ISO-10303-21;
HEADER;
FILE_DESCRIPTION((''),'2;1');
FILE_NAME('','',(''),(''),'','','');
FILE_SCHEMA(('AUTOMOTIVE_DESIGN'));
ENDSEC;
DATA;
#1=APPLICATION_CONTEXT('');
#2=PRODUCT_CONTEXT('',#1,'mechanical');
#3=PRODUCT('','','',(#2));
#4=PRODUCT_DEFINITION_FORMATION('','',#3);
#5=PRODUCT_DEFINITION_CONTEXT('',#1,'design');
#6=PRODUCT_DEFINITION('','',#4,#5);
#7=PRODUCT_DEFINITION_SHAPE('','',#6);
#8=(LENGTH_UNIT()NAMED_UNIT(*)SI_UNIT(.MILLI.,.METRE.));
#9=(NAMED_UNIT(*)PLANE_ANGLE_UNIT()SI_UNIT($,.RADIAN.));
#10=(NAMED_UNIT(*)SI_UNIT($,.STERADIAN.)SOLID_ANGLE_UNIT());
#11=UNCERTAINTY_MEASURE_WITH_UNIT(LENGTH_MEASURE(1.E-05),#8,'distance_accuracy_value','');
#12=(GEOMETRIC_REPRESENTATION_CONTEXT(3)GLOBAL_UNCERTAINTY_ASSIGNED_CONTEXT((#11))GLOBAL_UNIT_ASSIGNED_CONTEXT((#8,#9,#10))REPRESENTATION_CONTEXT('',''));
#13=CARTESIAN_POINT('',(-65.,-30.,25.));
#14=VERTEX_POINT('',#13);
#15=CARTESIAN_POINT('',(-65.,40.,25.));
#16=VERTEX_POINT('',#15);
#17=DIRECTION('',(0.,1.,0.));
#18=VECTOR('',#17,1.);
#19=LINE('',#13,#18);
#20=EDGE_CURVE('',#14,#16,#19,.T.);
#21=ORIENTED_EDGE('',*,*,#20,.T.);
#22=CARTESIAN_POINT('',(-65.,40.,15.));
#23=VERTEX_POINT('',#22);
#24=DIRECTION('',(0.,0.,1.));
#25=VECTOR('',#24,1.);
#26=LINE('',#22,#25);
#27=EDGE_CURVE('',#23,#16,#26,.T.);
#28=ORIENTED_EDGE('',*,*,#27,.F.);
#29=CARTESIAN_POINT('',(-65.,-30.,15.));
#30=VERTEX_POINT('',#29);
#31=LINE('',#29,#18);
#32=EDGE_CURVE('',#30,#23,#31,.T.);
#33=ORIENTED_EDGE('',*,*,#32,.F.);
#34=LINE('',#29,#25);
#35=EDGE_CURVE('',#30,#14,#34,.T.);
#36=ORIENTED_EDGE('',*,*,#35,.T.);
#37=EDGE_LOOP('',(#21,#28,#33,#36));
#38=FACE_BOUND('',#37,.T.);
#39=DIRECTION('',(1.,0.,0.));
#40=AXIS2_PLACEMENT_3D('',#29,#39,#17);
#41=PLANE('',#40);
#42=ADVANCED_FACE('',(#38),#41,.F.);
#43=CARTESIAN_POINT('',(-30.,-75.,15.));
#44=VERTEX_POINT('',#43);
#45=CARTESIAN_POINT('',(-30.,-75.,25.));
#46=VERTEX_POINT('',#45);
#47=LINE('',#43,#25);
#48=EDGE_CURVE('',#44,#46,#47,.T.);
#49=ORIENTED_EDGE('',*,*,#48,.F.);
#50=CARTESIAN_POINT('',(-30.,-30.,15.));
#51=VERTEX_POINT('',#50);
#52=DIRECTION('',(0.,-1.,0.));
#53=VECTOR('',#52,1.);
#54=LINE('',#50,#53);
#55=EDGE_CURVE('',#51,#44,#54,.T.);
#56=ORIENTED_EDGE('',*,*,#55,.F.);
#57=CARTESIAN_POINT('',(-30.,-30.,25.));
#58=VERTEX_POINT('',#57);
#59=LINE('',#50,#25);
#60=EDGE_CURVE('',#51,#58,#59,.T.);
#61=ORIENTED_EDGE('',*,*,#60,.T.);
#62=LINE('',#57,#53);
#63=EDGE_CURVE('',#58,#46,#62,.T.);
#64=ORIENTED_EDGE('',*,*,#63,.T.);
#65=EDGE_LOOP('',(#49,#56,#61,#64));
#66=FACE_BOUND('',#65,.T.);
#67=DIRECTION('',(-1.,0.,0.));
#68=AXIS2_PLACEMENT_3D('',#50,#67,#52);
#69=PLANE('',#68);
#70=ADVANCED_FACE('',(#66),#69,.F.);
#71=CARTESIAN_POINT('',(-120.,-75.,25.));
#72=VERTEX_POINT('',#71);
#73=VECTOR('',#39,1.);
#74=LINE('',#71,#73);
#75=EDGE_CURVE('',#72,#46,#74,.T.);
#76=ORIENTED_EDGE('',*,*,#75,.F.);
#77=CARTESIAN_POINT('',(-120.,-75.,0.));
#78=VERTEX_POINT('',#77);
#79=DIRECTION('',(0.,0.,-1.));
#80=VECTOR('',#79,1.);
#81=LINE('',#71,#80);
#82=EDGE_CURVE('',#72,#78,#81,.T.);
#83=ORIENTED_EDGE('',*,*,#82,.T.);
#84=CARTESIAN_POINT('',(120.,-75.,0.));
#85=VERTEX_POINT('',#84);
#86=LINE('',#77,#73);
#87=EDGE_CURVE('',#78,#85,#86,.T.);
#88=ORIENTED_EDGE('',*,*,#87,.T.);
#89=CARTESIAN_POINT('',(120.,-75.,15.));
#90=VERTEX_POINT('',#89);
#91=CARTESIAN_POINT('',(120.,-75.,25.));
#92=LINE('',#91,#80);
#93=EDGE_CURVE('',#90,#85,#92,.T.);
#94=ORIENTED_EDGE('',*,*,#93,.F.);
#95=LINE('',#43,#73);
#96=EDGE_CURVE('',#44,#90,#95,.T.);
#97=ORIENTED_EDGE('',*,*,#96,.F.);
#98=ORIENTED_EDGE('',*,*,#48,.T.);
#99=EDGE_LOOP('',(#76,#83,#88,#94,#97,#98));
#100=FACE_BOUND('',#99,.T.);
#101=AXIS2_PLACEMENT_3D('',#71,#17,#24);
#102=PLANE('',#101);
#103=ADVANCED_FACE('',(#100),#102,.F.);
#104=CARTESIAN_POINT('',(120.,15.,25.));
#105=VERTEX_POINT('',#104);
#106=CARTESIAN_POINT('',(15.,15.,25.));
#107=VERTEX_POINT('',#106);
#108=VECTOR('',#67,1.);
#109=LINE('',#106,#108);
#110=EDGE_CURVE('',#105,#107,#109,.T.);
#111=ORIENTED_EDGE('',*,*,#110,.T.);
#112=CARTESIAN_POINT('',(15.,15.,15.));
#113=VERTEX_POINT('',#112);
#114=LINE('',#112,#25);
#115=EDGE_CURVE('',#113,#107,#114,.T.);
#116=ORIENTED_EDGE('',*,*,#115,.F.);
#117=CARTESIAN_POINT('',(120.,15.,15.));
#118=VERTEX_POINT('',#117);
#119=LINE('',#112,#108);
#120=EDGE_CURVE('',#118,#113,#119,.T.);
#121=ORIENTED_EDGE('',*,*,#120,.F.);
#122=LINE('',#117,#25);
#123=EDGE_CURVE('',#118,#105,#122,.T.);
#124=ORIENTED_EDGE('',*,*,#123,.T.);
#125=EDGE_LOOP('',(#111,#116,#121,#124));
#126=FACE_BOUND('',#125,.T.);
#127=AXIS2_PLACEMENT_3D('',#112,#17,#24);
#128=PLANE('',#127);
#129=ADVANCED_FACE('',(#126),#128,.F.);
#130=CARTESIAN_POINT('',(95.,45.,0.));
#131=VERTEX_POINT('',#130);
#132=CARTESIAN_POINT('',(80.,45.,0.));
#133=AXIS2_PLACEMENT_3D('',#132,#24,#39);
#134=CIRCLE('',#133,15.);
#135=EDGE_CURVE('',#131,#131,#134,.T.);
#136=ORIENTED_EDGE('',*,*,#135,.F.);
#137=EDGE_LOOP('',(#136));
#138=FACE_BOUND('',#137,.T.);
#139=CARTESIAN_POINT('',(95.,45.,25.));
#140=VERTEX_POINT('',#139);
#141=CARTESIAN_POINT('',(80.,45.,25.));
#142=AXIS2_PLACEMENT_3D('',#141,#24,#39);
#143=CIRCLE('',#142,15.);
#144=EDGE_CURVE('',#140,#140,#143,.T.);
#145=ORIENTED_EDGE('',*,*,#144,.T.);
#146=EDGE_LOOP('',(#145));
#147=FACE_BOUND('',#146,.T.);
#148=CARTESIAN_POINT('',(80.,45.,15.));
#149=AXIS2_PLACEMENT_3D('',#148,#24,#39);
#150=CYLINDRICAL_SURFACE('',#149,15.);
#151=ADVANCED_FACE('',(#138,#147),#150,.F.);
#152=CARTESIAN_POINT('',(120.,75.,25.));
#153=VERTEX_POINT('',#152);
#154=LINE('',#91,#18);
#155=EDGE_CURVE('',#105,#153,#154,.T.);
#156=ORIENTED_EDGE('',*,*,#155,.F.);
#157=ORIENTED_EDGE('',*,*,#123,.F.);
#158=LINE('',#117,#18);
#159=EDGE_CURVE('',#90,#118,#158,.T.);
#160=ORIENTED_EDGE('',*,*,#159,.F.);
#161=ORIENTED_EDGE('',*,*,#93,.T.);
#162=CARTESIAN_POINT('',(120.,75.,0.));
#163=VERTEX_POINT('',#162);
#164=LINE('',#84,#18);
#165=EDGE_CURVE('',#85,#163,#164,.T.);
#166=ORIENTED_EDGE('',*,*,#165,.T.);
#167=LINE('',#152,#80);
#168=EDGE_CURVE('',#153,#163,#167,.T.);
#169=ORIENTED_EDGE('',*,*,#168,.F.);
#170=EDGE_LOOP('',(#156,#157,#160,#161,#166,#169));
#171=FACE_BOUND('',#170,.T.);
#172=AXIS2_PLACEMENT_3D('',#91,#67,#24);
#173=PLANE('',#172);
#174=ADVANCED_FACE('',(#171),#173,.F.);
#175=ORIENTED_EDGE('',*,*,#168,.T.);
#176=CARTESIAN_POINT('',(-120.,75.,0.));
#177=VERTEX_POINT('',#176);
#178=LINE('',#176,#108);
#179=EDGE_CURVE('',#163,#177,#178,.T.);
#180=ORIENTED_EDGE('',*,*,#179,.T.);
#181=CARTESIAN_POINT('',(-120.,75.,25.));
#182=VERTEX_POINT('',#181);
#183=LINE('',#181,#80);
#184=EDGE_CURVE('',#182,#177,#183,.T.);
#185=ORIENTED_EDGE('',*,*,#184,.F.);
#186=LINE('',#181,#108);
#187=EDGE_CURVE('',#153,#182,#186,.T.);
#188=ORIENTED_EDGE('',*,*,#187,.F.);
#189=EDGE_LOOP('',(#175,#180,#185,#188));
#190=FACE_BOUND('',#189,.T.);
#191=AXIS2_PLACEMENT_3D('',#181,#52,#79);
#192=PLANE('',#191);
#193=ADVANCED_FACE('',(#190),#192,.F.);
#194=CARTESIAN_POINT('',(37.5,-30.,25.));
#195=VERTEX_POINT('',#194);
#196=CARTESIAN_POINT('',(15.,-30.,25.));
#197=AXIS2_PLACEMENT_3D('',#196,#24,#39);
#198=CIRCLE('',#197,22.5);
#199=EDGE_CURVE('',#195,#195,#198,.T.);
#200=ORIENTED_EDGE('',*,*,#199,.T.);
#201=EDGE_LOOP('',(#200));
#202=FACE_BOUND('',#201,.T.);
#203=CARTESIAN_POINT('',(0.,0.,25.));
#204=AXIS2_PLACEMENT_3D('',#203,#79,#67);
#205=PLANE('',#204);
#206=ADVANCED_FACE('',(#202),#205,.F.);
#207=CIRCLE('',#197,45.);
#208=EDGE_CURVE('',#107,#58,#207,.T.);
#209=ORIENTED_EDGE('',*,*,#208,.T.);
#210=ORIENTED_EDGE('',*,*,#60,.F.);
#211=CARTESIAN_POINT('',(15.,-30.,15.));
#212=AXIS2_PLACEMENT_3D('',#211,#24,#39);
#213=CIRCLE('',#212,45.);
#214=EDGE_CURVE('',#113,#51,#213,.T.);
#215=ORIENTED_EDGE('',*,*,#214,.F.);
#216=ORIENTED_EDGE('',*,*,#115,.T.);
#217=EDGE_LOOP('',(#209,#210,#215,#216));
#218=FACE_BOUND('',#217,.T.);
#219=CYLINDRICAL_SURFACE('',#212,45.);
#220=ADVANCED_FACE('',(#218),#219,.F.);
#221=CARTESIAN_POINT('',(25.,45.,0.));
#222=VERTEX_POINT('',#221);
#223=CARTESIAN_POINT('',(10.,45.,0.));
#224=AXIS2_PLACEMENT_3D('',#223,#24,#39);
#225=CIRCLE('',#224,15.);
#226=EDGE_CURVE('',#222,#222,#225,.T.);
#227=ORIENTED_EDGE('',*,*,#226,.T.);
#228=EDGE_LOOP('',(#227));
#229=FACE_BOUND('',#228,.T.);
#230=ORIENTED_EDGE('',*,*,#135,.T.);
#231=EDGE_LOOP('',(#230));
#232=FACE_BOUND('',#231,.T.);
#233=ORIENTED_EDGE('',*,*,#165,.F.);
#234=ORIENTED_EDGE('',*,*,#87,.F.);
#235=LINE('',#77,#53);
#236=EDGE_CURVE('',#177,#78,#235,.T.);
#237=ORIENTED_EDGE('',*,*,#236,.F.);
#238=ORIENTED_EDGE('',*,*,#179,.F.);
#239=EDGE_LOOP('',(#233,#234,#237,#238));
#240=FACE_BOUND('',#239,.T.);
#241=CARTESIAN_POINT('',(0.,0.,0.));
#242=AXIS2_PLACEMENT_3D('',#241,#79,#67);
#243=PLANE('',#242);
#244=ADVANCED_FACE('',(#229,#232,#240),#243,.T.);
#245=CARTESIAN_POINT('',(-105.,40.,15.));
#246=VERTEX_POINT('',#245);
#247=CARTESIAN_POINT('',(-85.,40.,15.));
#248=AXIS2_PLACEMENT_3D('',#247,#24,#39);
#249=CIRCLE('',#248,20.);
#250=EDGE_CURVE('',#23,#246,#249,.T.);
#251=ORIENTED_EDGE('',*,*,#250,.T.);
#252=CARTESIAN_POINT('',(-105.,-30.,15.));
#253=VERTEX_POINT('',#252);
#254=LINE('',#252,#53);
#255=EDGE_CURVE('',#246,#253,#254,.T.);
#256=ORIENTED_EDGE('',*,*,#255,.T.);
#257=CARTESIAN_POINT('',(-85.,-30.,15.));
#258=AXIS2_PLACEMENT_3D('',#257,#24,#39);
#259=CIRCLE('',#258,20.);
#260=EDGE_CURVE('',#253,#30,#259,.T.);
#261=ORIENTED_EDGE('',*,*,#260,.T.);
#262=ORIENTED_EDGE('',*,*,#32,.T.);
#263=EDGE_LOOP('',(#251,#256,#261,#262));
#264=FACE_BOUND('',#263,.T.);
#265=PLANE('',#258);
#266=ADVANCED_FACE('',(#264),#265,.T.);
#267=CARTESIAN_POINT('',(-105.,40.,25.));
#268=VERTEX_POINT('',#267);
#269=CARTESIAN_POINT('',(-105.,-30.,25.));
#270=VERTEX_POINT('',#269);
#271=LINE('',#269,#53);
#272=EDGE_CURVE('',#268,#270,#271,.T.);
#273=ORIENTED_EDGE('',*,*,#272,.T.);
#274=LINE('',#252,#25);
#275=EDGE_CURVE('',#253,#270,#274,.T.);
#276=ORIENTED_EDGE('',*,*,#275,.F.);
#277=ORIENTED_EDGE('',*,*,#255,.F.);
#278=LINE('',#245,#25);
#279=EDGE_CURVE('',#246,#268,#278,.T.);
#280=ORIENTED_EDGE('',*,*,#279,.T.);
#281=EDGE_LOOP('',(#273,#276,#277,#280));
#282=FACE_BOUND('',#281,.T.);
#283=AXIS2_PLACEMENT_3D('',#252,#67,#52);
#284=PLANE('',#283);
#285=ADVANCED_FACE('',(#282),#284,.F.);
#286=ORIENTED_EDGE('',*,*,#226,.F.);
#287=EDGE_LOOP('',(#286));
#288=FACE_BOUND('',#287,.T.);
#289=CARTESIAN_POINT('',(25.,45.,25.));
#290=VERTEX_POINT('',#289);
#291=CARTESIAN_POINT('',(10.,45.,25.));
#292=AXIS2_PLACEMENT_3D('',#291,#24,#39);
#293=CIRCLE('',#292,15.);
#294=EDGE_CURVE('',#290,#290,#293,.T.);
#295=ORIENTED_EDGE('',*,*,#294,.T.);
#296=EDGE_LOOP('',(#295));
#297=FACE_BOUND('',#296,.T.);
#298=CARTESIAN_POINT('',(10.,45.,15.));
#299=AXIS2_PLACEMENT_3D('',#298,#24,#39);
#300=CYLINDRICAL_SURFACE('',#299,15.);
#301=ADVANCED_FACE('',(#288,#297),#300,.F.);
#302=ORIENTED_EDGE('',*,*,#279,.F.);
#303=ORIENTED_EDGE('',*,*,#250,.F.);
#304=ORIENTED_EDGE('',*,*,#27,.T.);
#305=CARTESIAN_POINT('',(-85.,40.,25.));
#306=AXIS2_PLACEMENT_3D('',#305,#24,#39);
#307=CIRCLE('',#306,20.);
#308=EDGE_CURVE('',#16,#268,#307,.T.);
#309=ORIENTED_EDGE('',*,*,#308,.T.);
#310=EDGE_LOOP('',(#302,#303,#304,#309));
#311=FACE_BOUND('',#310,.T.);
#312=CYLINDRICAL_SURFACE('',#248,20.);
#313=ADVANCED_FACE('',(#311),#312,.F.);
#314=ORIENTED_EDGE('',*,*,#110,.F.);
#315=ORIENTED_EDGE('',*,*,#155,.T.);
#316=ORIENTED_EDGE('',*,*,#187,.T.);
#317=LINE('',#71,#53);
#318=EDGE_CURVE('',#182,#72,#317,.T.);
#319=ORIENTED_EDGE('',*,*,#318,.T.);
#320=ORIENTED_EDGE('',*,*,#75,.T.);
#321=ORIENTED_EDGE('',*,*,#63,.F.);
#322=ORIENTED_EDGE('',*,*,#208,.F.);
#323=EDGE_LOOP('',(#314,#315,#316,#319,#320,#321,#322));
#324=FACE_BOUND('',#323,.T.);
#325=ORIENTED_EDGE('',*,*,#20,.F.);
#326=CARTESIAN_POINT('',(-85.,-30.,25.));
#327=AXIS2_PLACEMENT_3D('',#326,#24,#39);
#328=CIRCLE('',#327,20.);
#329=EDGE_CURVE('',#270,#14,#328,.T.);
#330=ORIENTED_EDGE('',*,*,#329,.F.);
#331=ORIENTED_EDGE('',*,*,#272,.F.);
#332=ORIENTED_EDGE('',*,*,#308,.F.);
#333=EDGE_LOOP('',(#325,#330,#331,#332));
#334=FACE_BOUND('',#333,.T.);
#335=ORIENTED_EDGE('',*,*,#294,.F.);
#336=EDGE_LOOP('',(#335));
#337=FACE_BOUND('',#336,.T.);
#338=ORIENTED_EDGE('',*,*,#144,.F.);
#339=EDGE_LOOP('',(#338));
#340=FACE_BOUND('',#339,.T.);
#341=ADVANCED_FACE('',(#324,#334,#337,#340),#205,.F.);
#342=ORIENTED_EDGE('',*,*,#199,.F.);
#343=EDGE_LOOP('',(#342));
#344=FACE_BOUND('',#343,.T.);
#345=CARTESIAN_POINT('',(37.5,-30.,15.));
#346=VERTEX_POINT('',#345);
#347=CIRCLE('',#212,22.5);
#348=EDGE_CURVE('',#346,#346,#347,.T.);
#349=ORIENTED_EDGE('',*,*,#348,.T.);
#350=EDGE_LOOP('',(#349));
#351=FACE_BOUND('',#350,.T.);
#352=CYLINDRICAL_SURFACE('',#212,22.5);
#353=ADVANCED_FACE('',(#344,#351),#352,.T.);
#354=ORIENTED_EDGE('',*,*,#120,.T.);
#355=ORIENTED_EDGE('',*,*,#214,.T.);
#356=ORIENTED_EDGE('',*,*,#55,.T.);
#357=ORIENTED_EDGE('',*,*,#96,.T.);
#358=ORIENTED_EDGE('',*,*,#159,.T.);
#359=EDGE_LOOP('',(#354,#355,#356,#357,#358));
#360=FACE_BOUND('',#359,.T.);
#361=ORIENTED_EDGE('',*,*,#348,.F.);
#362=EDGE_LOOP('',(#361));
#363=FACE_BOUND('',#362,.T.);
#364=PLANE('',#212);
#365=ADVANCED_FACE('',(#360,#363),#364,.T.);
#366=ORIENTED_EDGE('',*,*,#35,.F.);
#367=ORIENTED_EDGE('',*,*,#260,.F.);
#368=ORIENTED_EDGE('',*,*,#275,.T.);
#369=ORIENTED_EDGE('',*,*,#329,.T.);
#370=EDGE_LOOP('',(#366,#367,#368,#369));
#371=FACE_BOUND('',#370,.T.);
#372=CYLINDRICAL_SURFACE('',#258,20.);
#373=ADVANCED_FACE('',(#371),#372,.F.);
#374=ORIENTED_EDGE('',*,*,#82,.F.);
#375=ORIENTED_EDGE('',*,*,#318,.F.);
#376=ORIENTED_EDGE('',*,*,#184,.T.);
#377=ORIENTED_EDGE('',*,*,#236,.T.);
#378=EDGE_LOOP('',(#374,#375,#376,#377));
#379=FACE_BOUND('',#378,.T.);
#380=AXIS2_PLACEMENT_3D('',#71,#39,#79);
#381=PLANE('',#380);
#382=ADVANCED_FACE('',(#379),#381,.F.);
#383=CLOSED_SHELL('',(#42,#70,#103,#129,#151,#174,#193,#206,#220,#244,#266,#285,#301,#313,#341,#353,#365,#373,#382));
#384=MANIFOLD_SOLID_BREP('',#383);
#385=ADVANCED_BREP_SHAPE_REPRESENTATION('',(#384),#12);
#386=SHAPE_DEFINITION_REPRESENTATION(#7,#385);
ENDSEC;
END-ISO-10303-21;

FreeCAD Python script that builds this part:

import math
import FreeCAD as App
import Part
import Sketcher

V = App.Vector


def add_polygon(sketch, points):
    """Adds a closed chain of lines whose ends are joined by coincident constraints."""
    first, n = sketch.GeometryCount, len(points)
    for a, b in zip(points, points[1:] + points[:1]):
        sketch.addGeometry(Part.LineSegment(App.Vector(*a, 0), App.Vector(*b, 0)), False)
    for i in range(n):
        sketch.addConstraint(Sketcher.Constraint("Coincident", first + i, 2, first + (i + 1) % n, 1))

doc = App.newDocument("Part")
body = doc.addObject("PartDesign::Body", "Body")

# Sketch on XY plane
sketch1 = doc.addObject("Sketcher::SketchObject", "Sketch")
body.addObject(sketch1)
sketch1.AttachmentSupport = (doc.XY_Plane, [""])
sketch1.MapMode = "FlatFace"
add_polygon(sketch1, [(-120, 75), (-120, -75), (120, -75), (120, 75)])  # lines 0-3
sketch1.addConstraint([
    Sketcher.Constraint("Vertical", 0),
    Sketcher.Constraint("Horizontal", 1),
    Sketcher.Constraint("Vertical", 2),
    Sketcher.Constraint("Horizontal", 3),
    Sketcher.Constraint("Symmetric", 0, 2, 2, 2, -1, 1),
    Sketcher.Constraint("DistanceX", 1, 1, 1, 2, 240.0),
    Sketcher.Constraint("DistanceY", 0, 2, 0, 1, 150.0),
])
pad1 = doc.addObject("PartDesign::Pad", "Pad")
body.addObject(pad1)
pad1.Profile = sketch1
pad1.Length = 25

# Sketch on XY plane
sketch2 = doc.addObject("Sketcher::SketchObject", "Sketch001")
body.addObject(sketch2)
sketch2.AttachmentSupport = (doc.XY_Plane, [""])
sketch2.MapMode = "FlatFace"
sketch2.AttachmentOffset = App.Placement(V(0, 0, 25), App.Rotation())
sketch2.addGeometry([
    Part.Circle(V(10, 45, 0), V(0, 0, 1), 15),  # 0
    Part.Circle(V(80, 45, 0), V(0, 0, 1), 15),  # 1
    Part.LineSegment(V(-105, 40, 0), V(-105, -30, 0)),  # 2
    Part.ArcOfCircle(Part.Circle(V(-85, -30, 0), V(0, 0, 1), 20), math.radians(180), math.radians(360)),  # 3
    Part.LineSegment(V(-65, -30, 0), V(-65, 40, 0)),  # 4
    Part.ArcOfCircle(Part.Circle(V(-85, 40, 0), V(0, 0, 1), 20), math.radians(0), math.radians(180)),  # 5
    Part.LineSegment(V(120, 15, 0), V(15, 15, 0)),  # 6
    Part.ArcOfCircle(Part.Circle(V(15, -30, 0), V(0, 0, 1), 45), math.radians(90), math.radians(180)),  # 7
    Part.LineSegment(V(-30, -30, 0), V(-30, -75, 0)),  # 8
    Part.LineSegment(V(-30, -75, 0), V(120, -75, 0)),  # 9
    Part.LineSegment(V(120, -75, 0), V(120, 15, 0)),  # 10
    Part.Circle(V(15, -30, 0), V(0, 0, 1), 22.5),  # 11
], False)
sketch2.addConstraint([
    Sketcher.Constraint("Tangent", 2, 2, 3, 1),
    Sketcher.Constraint("Tangent", 3, 2, 4, 1),
    Sketcher.Constraint("Tangent", 4, 2, 5, 1),
    Sketcher.Constraint("Tangent", 5, 2, 2, 1),
    Sketcher.Constraint("Tangent", 6, 2, 7, 1),
    Sketcher.Constraint("Tangent", 7, 2, 8, 1),
    Sketcher.Constraint("Coincident", 8, 2, 9, 1),
    Sketcher.Constraint("Coincident", 9, 2, 10, 1),
    Sketcher.Constraint("Coincident", 10, 2, 6, 1),
    Sketcher.Constraint("Vertical", 2),
    Sketcher.Constraint("Vertical", 4),
    Sketcher.Constraint("Horizontal", 6),
    Sketcher.Constraint("Vertical", 8),
    Sketcher.Constraint("Horizontal", 9),
    Sketcher.Constraint("Vertical", 10),
    Sketcher.Constraint("Coincident", 11, 3, 7, 3),
    Sketcher.Constraint("Equal", 0, 1),
    Sketcher.Constraint("Horizontal", 0, 3, 1, 3),
    Sketcher.Constraint("Horizontal", 3, 3, 7, 3),
    Sketcher.Constraint("Diameter", 0, 30.0),
    Sketcher.Constraint("Diameter", 11, 45.0),
    Sketcher.Constraint("Radius", 3, 20.0),
    Sketcher.Constraint("Radius", 7, 45.0),
    Sketcher.Constraint("DistanceX", 6, 2, 6, 1, 105.0),
    Sketcher.Constraint("DistanceY", 2, 2, 2, 1, 70.0),
    Sketcher.Constraint("DistanceY", 8, 2, 8, 1, 45.0),
    Sketcher.Constraint("DistanceX", -1, 1, 0, 3, 10.0),
    Sketcher.Constraint("DistanceY", -1, 1, 0, 3, 45.0),
    Sketcher.Constraint("DistanceX", -1, 1, 1, 3, 80.0),
    Sketcher.Constraint("DistanceX", 3, 3, -1, 1, 85.0),
    Sketcher.Constraint("DistanceY", 3, 3, -1, 1, 30.0),
    Sketcher.Constraint("DistanceX", -1, 1, 7, 3, 15.0),
])
pocket1 = doc.addObject("PartDesign::Pocket", "Pocket")
body.addObject(pocket1)
pocket1.Profile = sketch2
pocket1.Length = 10

# Sketch on XY plane
sketch3 = doc.addObject("Sketcher::SketchObject", "Sketch002")
body.addObject(sketch3)
sketch3.AttachmentSupport = (doc.XY_Plane, [""])
sketch3.MapMode = "FlatFace"
sketch3.AttachmentOffset = App.Placement(V(0, 0, 15), App.Rotation())
sketch3.addGeometry([
    Part.Circle(V(10, 45, 0), V(0, 0, 1), 15),
    Part.Circle(V(80, 45, 0), V(0, 0, 1), 15),
], False)
sketch3.addConstraint([
    Sketcher.Constraint("Equal", 0, 1),
    Sketcher.Constraint("Horizontal", 0, 3, 1, 3),
    Sketcher.Constraint("Diameter", 0, 30.0),
    Sketcher.Constraint("DistanceX", -1, 1, 0, 3, 10.0),
    Sketcher.Constraint("DistanceY", -1, 1, 0, 3, 45.0),
    Sketcher.Constraint("DistanceX", -1, 1, 1, 3, 80.0),
])
pocket2 = doc.addObject("PartDesign::Pocket", "Pocket001")
body.addObject(pocket2)
pocket2.Profile = sketch3
pocket2.Type = "ThroughAll"

doc.recompute()
